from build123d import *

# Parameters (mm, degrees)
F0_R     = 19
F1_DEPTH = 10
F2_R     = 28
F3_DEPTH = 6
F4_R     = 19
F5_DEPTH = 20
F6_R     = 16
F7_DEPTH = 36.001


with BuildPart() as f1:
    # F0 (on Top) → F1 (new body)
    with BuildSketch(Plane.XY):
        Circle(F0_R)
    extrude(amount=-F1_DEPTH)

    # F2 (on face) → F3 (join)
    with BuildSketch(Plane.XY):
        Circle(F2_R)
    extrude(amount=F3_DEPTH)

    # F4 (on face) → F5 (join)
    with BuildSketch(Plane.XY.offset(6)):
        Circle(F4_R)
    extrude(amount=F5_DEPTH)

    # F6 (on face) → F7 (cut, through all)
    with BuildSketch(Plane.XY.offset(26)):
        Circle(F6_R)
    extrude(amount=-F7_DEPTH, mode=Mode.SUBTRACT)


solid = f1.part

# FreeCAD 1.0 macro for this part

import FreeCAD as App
import Part
import Sketcher

doc = App.newDocument("Part")
body = doc.addObject("PartDesign::Body", "Body")

# Sketch on XY plane
sketch1 = doc.addObject("Sketcher::SketchObject", "Sketch")
body.addObject(sketch1)
sketch1.AttachmentSupport = (doc.XY_Plane, [""])
sketch1.MapMode = "FlatFace"
sketch1.addGeometry(Part.Circle(App.Vector(0, 0, 0), App.Vector(0, 0, 1), 19), False)
sketch1.addConstraint(Sketcher.Constraint("Coincident", 0, 3, -1, 1))
sketch1.addConstraint(Sketcher.Constraint("Diameter", 0, 38.0))
pad1 = doc.addObject("PartDesign::Pad", "Pad")
body.addObject(pad1)
pad1.Profile = sketch1
pad1.Length = 10
pad1.Reversed = True

# Sketch on XY plane
sketch2 = doc.addObject("Sketcher::SketchObject", "Sketch001")
body.addObject(sketch2)
sketch2.AttachmentSupport = (doc.XY_Plane, [""])
sketch2.MapMode = "FlatFace"
sketch2.addGeometry(Part.Circle(App.Vector(0, 0, 0), App.Vector(0, 0, 1), 28), False)
sketch2.addConstraint(Sketcher.Constraint("Coincident", 0, 3, -1, 1))
sketch2.addConstraint(Sketcher.Constraint("Diameter", 0, 56.0))
pad2 = doc.addObject("PartDesign::Pad", "Pad001")
body.addObject(pad2)
pad2.Profile = sketch2
pad2.Length = 6

# Sketch on XY plane
sketch3 = doc.addObject("Sketcher::SketchObject", "Sketch002")
body.addObject(sketch3)
sketch3.AttachmentSupport = (doc.XY_Plane, [""])
sketch3.MapMode = "FlatFace"
sketch3.AttachmentOffset = App.Placement(App.Vector(0, 0, 6), App.Rotation())
sketch3.addGeometry(Part.Circle(App.Vector(0, 0, 0), App.Vector(0, 0, 1), 19), False)
sketch3.addConstraint(Sketcher.Constraint("Coincident", 0, 3, -1, 1))
sketch3.addConstraint(Sketcher.Constraint("Diameter", 0, 38.0))
pad3 = doc.addObject("PartDesign::Pad", "Pad002")
body.addObject(pad3)
pad3.Profile = sketch3
pad3.Length = 20

# Sketch on XY plane
sketch4 = doc.addObject("Sketcher::SketchObject", "Sketch003")
body.addObject(sketch4)
sketch4.AttachmentSupport = (doc.XY_Plane, [""])
sketch4.MapMode = "FlatFace"
sketch4.AttachmentOffset = App.Placement(App.Vector(0, 0, 26), App.Rotation())
sketch4.addGeometry(Part.Circle(App.Vector(0, 0, 0), App.Vector(0, 0, 1), 16), False)
sketch4.addConstraint(Sketcher.Constraint("Coincident", 0, 3, -1, 1))
sketch4.addConstraint(Sketcher.Constraint("Diameter", 0, 32.0))
pocket1 = doc.addObject("PartDesign::Pocket", "Pocket")
body.addObject(pocket1)
pocket1.Profile = sketch4
pocket1.Type = "ThroughAll"

doc.recompute()
